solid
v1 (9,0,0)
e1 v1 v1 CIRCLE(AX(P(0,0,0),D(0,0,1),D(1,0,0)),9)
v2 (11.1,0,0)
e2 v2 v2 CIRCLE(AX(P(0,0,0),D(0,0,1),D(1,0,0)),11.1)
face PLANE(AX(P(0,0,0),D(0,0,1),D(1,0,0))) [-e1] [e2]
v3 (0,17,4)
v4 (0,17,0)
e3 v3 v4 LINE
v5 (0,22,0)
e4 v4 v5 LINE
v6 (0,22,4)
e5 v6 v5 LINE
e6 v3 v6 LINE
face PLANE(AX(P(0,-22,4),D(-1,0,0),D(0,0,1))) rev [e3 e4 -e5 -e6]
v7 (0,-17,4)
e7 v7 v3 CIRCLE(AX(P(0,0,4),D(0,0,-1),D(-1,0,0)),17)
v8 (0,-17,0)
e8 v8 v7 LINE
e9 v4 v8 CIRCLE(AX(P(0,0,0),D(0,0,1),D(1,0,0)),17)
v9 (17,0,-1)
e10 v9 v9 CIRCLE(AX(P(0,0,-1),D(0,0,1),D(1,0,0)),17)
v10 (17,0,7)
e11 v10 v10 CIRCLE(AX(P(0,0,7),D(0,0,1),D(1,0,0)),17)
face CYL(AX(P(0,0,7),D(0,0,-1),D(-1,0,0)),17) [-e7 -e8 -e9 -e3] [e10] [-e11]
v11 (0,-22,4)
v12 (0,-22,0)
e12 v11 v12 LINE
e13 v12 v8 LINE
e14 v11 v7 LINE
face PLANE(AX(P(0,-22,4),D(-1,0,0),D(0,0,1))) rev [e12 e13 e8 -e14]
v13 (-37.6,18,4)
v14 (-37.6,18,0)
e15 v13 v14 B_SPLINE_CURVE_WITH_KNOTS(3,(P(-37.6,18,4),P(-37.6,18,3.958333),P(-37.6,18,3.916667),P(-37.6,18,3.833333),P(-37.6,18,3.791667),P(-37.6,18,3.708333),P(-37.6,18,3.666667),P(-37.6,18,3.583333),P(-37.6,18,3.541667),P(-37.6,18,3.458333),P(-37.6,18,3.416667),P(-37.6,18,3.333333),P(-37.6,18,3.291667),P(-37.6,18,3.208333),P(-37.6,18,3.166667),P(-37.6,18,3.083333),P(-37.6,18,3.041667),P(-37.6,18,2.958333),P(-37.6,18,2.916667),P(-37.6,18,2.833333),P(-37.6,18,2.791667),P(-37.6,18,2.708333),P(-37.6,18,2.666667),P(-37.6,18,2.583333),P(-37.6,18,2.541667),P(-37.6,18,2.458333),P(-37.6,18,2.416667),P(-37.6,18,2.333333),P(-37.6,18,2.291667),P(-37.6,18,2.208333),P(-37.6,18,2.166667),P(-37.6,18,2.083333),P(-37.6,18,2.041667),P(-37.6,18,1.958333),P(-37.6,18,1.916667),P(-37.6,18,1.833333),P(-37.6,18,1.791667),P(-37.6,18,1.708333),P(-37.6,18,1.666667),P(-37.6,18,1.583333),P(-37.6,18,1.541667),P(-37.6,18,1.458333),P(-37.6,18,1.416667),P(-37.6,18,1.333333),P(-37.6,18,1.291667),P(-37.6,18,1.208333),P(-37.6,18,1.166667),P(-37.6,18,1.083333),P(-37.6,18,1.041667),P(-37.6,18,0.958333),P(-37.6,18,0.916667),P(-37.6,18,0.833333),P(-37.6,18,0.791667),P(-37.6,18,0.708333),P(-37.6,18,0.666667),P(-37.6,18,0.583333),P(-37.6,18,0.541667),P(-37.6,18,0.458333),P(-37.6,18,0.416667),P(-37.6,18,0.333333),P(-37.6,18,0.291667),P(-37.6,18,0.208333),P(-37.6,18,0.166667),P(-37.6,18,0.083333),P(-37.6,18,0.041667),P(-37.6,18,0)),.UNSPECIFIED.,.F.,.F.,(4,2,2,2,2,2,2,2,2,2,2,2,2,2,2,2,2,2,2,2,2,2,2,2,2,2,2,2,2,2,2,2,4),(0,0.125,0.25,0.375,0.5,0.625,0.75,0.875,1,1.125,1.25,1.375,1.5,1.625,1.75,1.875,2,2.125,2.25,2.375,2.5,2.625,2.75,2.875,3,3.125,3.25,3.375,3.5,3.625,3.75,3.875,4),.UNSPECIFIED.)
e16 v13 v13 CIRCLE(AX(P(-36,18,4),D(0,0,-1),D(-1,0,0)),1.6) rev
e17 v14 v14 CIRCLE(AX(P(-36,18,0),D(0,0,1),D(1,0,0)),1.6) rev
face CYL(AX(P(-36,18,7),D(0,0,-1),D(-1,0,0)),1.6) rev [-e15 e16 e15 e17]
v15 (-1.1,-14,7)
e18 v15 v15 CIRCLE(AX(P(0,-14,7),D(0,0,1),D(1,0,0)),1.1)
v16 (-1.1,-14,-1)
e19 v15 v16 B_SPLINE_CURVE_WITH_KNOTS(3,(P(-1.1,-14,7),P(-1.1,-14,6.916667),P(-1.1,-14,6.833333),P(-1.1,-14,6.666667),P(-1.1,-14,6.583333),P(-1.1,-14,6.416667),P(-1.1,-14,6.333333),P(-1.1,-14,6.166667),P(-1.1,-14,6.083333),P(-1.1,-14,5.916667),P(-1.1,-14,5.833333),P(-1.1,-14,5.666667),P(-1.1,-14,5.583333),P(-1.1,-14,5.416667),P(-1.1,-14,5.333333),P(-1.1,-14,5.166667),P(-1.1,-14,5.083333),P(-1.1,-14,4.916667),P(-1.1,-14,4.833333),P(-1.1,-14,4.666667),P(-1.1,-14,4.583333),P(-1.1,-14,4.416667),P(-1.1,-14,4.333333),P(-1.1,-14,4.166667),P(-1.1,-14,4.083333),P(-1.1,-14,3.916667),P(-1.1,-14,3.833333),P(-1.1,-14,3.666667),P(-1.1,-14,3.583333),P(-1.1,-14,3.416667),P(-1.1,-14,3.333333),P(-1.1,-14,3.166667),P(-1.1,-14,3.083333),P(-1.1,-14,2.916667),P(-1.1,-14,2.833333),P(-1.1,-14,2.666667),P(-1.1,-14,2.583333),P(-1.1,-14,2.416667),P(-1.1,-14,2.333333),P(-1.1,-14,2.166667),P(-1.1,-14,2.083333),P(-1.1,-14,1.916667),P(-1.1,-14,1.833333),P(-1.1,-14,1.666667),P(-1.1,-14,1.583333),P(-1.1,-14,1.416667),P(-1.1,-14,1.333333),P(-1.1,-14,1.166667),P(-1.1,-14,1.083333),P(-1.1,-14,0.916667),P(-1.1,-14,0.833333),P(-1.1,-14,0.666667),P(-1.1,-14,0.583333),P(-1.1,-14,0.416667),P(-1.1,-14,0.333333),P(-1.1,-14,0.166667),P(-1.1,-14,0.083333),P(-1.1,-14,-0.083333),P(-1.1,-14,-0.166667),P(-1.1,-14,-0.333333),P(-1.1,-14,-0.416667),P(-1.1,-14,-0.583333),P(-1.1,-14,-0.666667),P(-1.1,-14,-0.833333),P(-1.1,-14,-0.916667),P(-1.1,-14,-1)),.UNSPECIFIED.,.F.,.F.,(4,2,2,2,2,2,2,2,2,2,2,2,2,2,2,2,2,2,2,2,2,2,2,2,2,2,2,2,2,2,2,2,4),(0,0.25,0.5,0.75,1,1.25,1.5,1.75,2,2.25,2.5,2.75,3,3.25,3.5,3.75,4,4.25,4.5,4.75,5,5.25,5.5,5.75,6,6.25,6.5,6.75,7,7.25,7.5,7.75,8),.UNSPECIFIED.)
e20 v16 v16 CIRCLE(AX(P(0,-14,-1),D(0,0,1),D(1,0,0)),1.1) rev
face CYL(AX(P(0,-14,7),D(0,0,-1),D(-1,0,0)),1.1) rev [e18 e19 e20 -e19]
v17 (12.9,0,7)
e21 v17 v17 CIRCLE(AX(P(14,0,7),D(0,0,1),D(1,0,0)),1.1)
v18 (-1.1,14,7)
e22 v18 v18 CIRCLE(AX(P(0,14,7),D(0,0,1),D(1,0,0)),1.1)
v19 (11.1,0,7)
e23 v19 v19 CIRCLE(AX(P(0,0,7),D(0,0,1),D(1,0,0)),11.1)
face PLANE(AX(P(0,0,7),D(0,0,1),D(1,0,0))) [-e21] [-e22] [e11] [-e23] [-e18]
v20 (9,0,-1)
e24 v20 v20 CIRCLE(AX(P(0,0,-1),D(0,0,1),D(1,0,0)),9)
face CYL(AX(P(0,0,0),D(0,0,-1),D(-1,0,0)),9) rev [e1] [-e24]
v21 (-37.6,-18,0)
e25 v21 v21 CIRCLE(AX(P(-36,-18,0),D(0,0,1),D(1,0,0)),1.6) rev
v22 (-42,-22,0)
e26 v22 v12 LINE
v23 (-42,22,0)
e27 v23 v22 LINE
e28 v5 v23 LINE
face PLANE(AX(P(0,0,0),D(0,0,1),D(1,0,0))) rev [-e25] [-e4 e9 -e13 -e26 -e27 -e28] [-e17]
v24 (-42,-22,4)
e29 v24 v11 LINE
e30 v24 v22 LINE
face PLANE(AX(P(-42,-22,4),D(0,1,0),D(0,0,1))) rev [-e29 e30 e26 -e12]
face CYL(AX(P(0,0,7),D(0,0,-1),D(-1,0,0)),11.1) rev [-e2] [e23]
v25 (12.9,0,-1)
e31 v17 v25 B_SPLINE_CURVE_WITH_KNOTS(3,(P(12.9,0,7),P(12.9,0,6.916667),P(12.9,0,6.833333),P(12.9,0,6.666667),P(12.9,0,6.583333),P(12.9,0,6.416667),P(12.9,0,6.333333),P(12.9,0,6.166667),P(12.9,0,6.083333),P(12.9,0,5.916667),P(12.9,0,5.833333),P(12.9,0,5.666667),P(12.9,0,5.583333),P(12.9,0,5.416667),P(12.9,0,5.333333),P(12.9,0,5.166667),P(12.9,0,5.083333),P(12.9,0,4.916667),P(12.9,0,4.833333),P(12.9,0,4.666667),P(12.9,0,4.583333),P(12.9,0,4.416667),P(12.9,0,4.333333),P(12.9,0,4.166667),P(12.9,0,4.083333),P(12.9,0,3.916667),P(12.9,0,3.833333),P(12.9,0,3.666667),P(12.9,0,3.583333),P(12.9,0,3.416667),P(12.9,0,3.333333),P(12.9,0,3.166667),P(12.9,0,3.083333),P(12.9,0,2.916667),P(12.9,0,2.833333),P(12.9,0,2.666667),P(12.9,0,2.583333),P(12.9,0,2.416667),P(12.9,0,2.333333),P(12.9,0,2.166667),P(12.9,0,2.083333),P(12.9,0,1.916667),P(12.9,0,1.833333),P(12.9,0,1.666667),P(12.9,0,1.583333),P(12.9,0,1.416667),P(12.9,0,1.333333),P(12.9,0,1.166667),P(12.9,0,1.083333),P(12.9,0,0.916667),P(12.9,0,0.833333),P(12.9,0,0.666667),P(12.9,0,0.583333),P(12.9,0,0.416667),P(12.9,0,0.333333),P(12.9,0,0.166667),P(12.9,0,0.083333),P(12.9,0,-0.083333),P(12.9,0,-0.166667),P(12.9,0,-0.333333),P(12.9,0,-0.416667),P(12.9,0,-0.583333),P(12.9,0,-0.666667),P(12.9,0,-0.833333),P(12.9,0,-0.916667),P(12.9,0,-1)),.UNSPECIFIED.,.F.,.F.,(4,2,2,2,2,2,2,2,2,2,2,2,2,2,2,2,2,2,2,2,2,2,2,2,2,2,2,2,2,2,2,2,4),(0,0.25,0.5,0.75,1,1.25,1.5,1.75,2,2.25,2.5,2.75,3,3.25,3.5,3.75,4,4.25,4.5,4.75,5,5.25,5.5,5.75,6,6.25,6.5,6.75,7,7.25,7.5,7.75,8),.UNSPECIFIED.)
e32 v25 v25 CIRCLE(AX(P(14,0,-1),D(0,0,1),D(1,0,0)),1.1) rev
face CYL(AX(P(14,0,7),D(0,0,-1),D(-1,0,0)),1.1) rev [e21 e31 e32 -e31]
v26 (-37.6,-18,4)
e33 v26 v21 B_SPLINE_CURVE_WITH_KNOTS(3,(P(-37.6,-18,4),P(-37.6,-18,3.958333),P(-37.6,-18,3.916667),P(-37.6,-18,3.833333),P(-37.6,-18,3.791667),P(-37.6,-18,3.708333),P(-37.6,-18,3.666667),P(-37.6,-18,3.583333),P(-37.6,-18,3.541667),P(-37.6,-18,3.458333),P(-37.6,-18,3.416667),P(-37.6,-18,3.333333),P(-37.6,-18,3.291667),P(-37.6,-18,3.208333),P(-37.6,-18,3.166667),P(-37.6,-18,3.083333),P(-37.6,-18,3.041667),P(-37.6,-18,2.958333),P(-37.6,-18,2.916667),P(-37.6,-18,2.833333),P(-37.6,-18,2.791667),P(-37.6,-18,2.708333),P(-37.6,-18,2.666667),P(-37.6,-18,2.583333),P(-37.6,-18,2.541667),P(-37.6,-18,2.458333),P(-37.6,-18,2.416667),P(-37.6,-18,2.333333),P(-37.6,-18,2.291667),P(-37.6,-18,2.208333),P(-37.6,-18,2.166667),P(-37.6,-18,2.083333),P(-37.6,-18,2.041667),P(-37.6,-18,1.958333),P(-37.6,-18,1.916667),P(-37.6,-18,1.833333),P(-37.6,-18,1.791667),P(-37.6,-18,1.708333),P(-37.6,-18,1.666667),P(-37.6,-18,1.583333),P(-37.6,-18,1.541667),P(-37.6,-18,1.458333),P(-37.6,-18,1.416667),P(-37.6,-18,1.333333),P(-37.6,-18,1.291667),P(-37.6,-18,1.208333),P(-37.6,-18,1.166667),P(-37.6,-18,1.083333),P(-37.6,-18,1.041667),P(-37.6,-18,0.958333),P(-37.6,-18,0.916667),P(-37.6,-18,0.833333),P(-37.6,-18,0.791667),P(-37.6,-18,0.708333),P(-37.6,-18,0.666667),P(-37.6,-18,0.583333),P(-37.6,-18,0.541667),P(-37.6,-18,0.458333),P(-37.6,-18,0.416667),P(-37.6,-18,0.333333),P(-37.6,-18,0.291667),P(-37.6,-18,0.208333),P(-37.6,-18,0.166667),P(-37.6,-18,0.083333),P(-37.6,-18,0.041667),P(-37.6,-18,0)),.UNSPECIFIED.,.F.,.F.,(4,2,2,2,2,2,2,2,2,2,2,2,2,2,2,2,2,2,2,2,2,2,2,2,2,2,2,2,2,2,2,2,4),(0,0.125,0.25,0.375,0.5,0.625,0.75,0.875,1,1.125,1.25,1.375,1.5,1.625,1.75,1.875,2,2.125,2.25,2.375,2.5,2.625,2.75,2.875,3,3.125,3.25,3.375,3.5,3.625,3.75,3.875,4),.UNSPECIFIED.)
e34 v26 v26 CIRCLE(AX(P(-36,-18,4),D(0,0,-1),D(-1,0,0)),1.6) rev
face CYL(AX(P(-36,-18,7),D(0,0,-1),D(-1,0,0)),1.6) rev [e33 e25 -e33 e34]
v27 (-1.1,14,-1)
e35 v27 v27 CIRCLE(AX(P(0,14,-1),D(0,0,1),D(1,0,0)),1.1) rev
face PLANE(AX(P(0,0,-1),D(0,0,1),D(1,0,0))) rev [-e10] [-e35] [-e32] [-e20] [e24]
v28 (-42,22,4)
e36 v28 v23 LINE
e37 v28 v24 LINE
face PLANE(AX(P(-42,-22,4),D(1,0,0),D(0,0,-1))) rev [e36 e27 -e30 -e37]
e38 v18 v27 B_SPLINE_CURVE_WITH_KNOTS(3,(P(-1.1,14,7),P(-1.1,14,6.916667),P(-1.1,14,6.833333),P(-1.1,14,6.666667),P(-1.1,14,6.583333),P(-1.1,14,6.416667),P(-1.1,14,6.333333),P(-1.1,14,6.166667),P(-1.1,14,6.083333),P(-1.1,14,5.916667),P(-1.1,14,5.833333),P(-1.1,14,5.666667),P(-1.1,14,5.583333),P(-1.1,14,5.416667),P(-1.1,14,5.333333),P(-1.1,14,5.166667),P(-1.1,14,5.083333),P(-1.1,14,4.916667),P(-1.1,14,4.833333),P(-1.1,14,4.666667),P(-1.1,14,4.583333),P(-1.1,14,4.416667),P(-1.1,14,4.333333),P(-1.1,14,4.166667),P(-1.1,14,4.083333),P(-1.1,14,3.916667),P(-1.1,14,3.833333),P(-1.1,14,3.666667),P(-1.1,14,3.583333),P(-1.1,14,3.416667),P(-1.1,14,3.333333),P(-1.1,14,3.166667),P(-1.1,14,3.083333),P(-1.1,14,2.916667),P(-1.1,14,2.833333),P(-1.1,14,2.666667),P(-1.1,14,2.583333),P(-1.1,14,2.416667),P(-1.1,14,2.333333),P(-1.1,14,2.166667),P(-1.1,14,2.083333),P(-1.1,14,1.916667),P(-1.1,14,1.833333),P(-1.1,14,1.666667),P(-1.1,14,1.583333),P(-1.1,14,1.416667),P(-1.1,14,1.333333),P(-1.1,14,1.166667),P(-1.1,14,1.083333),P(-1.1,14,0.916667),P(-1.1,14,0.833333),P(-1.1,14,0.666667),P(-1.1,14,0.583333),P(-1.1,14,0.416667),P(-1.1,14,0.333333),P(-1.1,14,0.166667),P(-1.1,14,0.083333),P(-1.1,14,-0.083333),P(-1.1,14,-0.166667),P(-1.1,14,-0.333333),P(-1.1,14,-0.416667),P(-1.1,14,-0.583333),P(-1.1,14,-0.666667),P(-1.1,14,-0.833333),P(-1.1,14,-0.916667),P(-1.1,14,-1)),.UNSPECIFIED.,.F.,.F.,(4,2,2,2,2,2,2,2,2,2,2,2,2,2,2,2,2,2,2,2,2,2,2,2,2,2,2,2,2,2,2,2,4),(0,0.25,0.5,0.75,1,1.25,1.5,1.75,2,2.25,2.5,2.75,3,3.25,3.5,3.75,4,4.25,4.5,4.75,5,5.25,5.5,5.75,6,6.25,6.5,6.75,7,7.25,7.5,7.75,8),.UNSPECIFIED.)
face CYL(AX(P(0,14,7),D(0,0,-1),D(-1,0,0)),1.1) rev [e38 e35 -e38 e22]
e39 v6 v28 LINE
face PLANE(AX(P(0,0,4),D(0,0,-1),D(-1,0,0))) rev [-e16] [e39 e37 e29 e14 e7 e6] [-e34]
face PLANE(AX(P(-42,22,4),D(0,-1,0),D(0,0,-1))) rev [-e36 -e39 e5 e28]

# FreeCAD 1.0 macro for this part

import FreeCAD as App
import Part
import Sketcher

V = App.Vector
Q = App.Units.Quantity

doc = App.newDocument("Part")
body = doc.addObject("PartDesign::Body", "Body")

# Sketch on XY plane
sketch1 = body.newObject("Sketcher::SketchObject", "Sketch")
sketch1.AttachmentSupport = (doc.getObject("XY_Plane"), [""])
sketch1.MapMode = "FlatFace"
sketch1.addGeometry(Part.Circle(V(0, 0, 0), V(0, 0, 1), 17), False)
sketch1.addGeometry(Part.Circle(V(0, 0, 0), V(0, 0, 1), 11), False)
sketch1.addConstraint(Sketcher.Constraint("Coincident", 0, 3, -1, 1))
sketch1.addConstraint(Sketcher.Constraint("Coincident", 1, 3, -1, 1))
sketch1.addConstraint(Sketcher.Constraint("Diameter", 0, Q("34 mm")))
sketch1.addConstraint(Sketcher.Constraint("Diameter", 1, Q("22.2 mm")))
pad1 = body.newObject("PartDesign::Pad", "Pad")
pad1.Profile = sketch1
pad1.Length = 7

# Sketch on XY plane
sketch2 = body.newObject("Sketcher::SketchObject", "Sketch001")
sketch2.AttachmentSupport = (doc.getObject("XY_Plane"), [""])
sketch2.MapMode = "FlatFace"
sketch2.addGeometry(Part.LineSegment(V(-42, 22, 0), V(-42, -22, 0)), False)
sketch2.addGeometry(Part.LineSegment(V(-42, -22, 0), V(0, -22, 0)), False)
sketch2.addGeometry(Part.LineSegment(V(0, -22, 0), V(0, 22, 0)), False)
sketch2.addGeometry(Part.LineSegment(V(0, 22, 0), V(-42, 22, 0)), False)
sketch2.addConstraint(Sketcher.Constraint("Coincident", 0, 2, 1, 1))
sketch2.addConstraint(Sketcher.Constraint("Coincident", 1, 2, 2, 1))
sketch2.addConstraint(Sketcher.Constraint("Coincident", 2, 2, 3, 1))
sketch2.addConstraint(Sketcher.Constraint("Coincident", 3, 2, 0, 1))
sketch2.addConstraint(Sketcher.Constraint("Vertical", 0))
sketch2.addConstraint(Sketcher.Constraint("Horizontal", 1))
sketch2.addConstraint(Sketcher.Constraint("Vertical", 2))
sketch2.addConstraint(Sketcher.Constraint("Horizontal", 3))
sketch2.addConstraint(Sketcher.Constraint("Symmetric", 1, 2, 2, 2, -1, 1))
sketch2.addConstraint(Sketcher.Constraint("DistanceX", 1, 1, 1, 2, Q("42 mm")))
sketch2.addConstraint(Sketcher.Constraint("DistanceY", 0, 2, 0, 1, Q("44 mm")))
pad2 = body.newObject("PartDesign::Pad", "Pad001")
pad2.Profile = sketch2
pad2.Length = 4

# Sketch on XY plane
sketch3 = body.newObject("Sketcher::SketchObject", "Sketch002")
sketch3.AttachmentSupport = (doc.getObject("XY_Plane"), [""])
sketch3.MapMode = "FlatFace"
sketch3.AttachmentOffset = App.Placement(V(0, 0, -50), App.Rotation())
sketch3.addGeometry(Part.Circle(V(0, 0, 0), V(0, 0, 1), 11), False)
sketch3.addConstraint(Sketcher.Constraint("Coincident", 0, 3, -1, 1))
sketch3.addConstraint(Sketcher.Constraint("Diameter", 0, Q("22.2 mm")))
pocket1 = body.newObject("PartDesign::Pocket", "Pocket")
pocket1.Profile = sketch3
pocket1.Type = "ThroughAll"
pocket1.Reversed = True

# Sketch on XY plane
sketch4 = body.newObject("Sketcher::SketchObject", "Sketch003")
sketch4.AttachmentSupport = (doc.getObject("XY_Plane"), [""])
sketch4.MapMode = "FlatFace"
sketch4.AttachmentOffset = App.Placement(V(0, 0, -1), App.Rotation())
sketch4.addGeometry(Part.Circle(V(0, 0, 0), V(0, 0, 1), 17), False)
sketch4.addGeometry(Part.Circle(V(0, 0, 0), V(0, 0, 1), 9), False)
sketch4.addConstraint(Sketcher.Constraint("Coincident", 0, 3, -1, 1))
sketch4.addConstraint(Sketcher.Constraint("Coincident", 1, 3, -1, 1))
sketch4.addConstraint(Sketcher.Constraint("Diameter", 0, Q("34 mm")))
sketch4.addConstraint(Sketcher.Constraint("Diameter", 1, Q("18 mm")))
pad3 = body.newObject("PartDesign::Pad", "Pad002")
pad3.Profile = sketch4
pad3.Length = 1

# Sketch on XY plane
sketch5 = body.newObject("Sketcher::SketchObject", "Sketch004")
sketch5.AttachmentSupport = (doc.getObject("XY_Plane"), [""])
sketch5.MapMode = "FlatFace"
sketch5.AttachmentOffset = App.Placement(V(0, 0, -50), App.Rotation())
sketch5.addGeometry(Part.Circle(V(-36, -18, 0), V(0, 0, 1), 1.6), False)
sketch5.addGeometry(Part.Circle(V(-36, 18, 0), V(0, 0, 1), 1.6), False)
sketch5.addConstraint(Sketcher.Constraint("Equal", 0, 1))
sketch5.addConstraint(Sketcher.Constraint("Symmetric", 0, 3, 1, 3, -1))
sketch5.addConstraint(Sketcher.Constraint("Diameter", 0, Q("3.2 mm")))
sketch5.addConstraint(Sketcher.Constraint("DistanceX", 0, 3, -1, 1, Q("36 mm")))
sketch5.addConstraint(Sketcher.Constraint("DistanceY", 0, 3, -1, 1, Q("18 mm")))
pocket2 = body.newObject("PartDesign::Pocket", "Pocket001")
pocket2.Profile = sketch5
pocket2.Type = "ThroughAll"
pocket2.Reversed = True

# Sketch on XY plane
sketch6 = body.newObject("Sketcher::SketchObject", "Sketch005")
sketch6.AttachmentSupport = (doc.getObject("XY_Plane"), [""])
sketch6.MapMode = "FlatFace"
sketch6.AttachmentOffset = App.Placement(V(0, 0, -50), App.Rotation())
sketch6.addGeometry(Part.Circle(V(14, 0, 0), V(0, 0, 1), 1.1), False)
sketch6.addGeometry(Part.Circle(V(0, -14, 0), V(0, 0, 1), 1.1), False)
sketch6.addGeometry(Part.Circle(V(0, 14, 0), V(0, 0, 1), 1.1), False)
sketch6.addConstraint(Sketcher.Constraint("Equal", 0, 1))
sketch6.addConstraint(Sketcher.Constraint("Equal", 1, 2))
sketch6.addConstraint(Sketcher.Constraint("Symmetric", 1, 3, 2, 3, -1, 1))
sketch6.addConstraint(Sketcher.Constraint("PointOnObject", 0, 3, -1))
sketch6.addConstraint(Sketcher.Constraint("PointOnObject", 1, 3, -2))
sketch6.addConstraint(Sketcher.Constraint("Diameter", 0, Q("2.2 mm")))
sketch6.addConstraint(Sketcher.Constraint("DistanceX", -1, 1, 0, 3, Q("14 mm")))
sketch6.addConstraint(Sketcher.Constraint("DistanceY", 1, 3, -1, 1, Q("14 mm")))
pocket3 = body.newObject("PartDesign::Pocket", "Pocket002")
pocket3.Profile = sketch6
pocket3.Type = "ThroughAll"
pocket3.Reversed = True

doc.recompute()
